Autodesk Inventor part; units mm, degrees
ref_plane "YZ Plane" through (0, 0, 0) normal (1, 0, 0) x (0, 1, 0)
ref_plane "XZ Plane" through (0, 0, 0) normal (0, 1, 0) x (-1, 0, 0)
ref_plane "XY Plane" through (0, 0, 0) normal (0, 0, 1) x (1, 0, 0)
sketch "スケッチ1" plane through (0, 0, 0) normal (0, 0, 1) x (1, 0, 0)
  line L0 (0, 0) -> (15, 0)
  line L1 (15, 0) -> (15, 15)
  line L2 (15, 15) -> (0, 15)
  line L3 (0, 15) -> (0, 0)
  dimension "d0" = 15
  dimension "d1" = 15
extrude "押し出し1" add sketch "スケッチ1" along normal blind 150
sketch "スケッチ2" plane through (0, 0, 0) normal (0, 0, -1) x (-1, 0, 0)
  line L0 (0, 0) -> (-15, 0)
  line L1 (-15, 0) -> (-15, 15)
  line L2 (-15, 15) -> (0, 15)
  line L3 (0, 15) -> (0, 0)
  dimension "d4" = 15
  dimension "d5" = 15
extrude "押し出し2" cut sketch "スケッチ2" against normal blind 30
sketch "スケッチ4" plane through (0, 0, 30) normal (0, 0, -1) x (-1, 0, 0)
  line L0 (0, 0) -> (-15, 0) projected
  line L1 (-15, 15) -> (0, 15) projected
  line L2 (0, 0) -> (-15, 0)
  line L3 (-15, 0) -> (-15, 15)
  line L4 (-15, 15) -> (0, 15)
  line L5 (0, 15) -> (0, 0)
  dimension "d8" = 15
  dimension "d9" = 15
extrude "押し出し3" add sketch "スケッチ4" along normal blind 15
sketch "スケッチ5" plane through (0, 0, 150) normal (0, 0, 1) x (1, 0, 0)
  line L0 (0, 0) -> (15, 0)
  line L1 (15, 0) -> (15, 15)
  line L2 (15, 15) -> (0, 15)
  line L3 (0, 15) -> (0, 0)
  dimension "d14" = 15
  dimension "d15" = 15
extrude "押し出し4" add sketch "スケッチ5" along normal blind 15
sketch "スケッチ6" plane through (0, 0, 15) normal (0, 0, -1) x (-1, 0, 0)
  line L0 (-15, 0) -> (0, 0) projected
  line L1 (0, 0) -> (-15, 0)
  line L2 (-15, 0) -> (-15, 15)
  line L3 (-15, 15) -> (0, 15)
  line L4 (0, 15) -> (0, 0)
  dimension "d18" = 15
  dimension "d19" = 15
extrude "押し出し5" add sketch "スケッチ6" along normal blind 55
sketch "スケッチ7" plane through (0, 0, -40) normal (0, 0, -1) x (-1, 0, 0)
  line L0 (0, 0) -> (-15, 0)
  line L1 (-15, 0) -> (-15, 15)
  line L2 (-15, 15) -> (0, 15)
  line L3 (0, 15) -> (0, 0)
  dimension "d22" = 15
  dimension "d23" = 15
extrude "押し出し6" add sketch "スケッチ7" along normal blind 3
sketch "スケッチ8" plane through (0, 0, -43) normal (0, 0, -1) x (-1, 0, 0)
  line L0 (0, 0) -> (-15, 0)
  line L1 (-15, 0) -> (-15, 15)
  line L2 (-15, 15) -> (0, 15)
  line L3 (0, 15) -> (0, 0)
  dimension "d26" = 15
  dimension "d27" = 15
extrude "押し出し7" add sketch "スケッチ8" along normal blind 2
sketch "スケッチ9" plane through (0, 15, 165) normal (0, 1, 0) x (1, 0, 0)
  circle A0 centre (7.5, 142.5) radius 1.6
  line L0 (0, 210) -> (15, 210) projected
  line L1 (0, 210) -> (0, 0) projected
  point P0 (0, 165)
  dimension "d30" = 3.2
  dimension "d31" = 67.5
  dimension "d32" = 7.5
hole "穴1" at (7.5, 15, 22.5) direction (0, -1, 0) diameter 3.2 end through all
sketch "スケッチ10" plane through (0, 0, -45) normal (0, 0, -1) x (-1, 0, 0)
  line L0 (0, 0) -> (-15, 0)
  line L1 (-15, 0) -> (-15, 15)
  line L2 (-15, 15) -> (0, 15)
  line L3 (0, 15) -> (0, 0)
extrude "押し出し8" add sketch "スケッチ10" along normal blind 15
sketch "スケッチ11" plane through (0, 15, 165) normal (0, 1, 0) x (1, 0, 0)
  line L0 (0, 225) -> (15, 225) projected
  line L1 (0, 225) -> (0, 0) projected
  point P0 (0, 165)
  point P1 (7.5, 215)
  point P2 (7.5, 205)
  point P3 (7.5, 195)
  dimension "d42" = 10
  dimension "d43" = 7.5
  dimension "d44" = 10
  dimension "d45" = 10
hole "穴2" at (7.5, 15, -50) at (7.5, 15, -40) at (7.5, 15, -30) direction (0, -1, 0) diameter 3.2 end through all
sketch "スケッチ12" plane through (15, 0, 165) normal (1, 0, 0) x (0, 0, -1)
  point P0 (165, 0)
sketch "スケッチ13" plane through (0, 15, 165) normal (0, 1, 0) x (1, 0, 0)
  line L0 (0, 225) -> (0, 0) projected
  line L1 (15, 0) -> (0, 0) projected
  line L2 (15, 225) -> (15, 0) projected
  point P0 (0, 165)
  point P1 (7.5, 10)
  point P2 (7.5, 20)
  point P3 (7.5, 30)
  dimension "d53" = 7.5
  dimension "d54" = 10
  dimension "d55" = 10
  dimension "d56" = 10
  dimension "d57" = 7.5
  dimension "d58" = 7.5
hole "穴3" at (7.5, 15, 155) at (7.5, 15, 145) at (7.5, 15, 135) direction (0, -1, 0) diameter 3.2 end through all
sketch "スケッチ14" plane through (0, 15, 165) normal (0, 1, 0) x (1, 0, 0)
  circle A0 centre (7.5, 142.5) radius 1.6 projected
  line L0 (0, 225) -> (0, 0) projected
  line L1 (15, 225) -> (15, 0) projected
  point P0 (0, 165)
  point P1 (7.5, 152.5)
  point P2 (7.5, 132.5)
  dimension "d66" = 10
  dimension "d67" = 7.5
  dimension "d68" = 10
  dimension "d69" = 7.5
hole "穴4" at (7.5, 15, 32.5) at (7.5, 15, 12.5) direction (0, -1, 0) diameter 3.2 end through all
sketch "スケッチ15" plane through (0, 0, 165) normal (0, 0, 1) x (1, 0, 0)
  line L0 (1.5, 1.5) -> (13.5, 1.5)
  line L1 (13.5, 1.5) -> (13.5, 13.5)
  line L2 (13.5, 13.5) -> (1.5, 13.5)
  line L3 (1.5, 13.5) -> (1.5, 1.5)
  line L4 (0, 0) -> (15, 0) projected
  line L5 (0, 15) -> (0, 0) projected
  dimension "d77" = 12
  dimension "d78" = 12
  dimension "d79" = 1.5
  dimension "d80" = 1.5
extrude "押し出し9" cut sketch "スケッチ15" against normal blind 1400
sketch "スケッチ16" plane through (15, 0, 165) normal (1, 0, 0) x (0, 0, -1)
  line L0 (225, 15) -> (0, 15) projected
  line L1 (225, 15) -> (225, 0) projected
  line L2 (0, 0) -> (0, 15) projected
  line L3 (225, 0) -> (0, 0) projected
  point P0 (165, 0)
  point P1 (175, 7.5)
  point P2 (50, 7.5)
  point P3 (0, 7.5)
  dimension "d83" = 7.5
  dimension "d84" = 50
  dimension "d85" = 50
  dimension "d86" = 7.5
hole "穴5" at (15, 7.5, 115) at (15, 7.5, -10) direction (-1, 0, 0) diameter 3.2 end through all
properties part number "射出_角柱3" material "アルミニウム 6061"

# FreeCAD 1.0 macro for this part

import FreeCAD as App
import Part
import Sketcher
Q = App.Units.Quantity

doc = App.newDocument("Part")
body = doc.addObject("PartDesign::Body", "Body")

# Sketch on XY plane
sketch1 = body.newObject("Sketcher::SketchObject", "Sketch")
sketch1.AttachmentSupport = (doc.getObject("XY_Plane"), [""])
sketch1.MapMode = "FlatFace"
sketch1.addGeometry(Part.LineSegment(App.Vector(0, 15, 0), App.Vector(0, 0, 0)), False)
sketch1.addGeometry(Part.LineSegment(App.Vector(0, 0, 0), App.Vector(15, 0, 0)), False)
sketch1.addGeometry(Part.LineSegment(App.Vector(15, 0, 0), App.Vector(15, 15, 0)), False)
sketch1.addGeometry(Part.LineSegment(App.Vector(15, 15, 0), App.Vector(0, 15, 0)), False)
sketch1.addConstraint(Sketcher.Constraint("Coincident", 0, 2, 1, 1))
sketch1.addConstraint(Sketcher.Constraint("Coincident", 1, 2, 2, 1))
sketch1.addConstraint(Sketcher.Constraint("Coincident", 2, 2, 3, 1))
sketch1.addConstraint(Sketcher.Constraint("Coincident", 3, 2, 0, 1))
sketch1.addConstraint(Sketcher.Constraint("Vertical", 0))
sketch1.addConstraint(Sketcher.Constraint("Horizontal", 1))
sketch1.addConstraint(Sketcher.Constraint("Vertical", 2))
sketch1.addConstraint(Sketcher.Constraint("Horizontal", 3))
sketch1.addConstraint(Sketcher.Constraint("Coincident", 0, 2, -1, 1))
sketch1.addConstraint(Sketcher.Constraint("Equal", 3, 0))
sketch1.addConstraint(Sketcher.Constraint("DistanceX", 1, 1, 1, 2, Q("15 mm")))
pad1 = body.newObject("PartDesign::Pad", "Pad")
pad1.Profile = sketch1
pad1.Length = 150

# Sketch on XY plane
sketch2 = body.newObject("Sketcher::SketchObject", "Sketch001")
sketch2.AttachmentSupport = (doc.getObject("XY_Plane"), [""])
sketch2.MapMode = "FlatFace"
sketch2.addGeometry(Part.LineSegment(App.Vector(15, 0, 0), App.Vector(0, 0, 0)), False)
sketch2.addGeometry(Part.LineSegment(App.Vector(0, 0, 0), App.Vector(0, 15, 0)), False)
sketch2.addGeometry(Part.LineSegment(App.Vector(0, 15, 0), App.Vector(15, 15, 0)), False)
sketch2.addGeometry(Part.LineSegment(App.Vector(15, 15, 0), App.Vector(15, 0, 0)), False)
sketch2.addConstraint(Sketcher.Constraint("Coincident", 0, 2, 1, 1))
sketch2.addConstraint(Sketcher.Constraint("Coincident", 1, 2, 2, 1))
sketch2.addConstraint(Sketcher.Constraint("Coincident", 2, 2, 3, 1))
sketch2.addConstraint(Sketcher.Constraint("Coincident", 3, 2, 0, 1))
sketch2.addConstraint(Sketcher.Constraint("Horizontal", 0))
sketch2.addConstraint(Sketcher.Constraint("Vertical", 1))
sketch2.addConstraint(Sketcher.Constraint("Horizontal", 2))
sketch2.addConstraint(Sketcher.Constraint("Vertical", 3))
sketch2.addConstraint(Sketcher.Constraint("Coincident", 0, 2, -1, 1))
sketch2.addConstraint(Sketcher.Constraint("Equal", 2, 1))
sketch2.addConstraint(Sketcher.Constraint("DistanceX", 0, 2, 0, 1, Q("15 mm")))
pocket1 = body.newObject("PartDesign::Pocket", "Pocket")
pocket1.Profile = sketch2
pocket1.Length = 30
pocket1.Reversed = True

# Sketch on XY plane
sketch3 = body.newObject("Sketcher::SketchObject", "Sketch002")
sketch3.AttachmentSupport = (doc.getObject("XY_Plane"), [""])
sketch3.MapMode = "FlatFace"
sketch3.AttachmentOffset = App.Placement(App.Vector(0, 0, 30), App.Rotation())
sketch3.addGeometry(Part.LineSegment(App.Vector(15, 0, 0), App.Vector(0, 0, 0)), False)
sketch3.addGeometry(Part.LineSegment(App.Vector(0, 0, 0), App.Vector(0, 15, 0)), False)
sketch3.addGeometry(Part.LineSegment(App.Vector(0, 15, 0), App.Vector(15, 15, 0)), False)
sketch3.addGeometry(Part.LineSegment(App.Vector(15, 15, 0), App.Vector(15, 0, 0)), False)
sketch3.addConstraint(Sketcher.Constraint("Coincident", 0, 2, 1, 1))
sketch3.addConstraint(Sketcher.Constraint("Coincident", 1, 2, 2, 1))
sketch3.addConstraint(Sketcher.Constraint("Coincident", 2, 2, 3, 1))
sketch3.addConstraint(Sketcher.Constraint("Coincident", 3, 2, 0, 1))
sketch3.addConstraint(Sketcher.Constraint("Horizontal", 0))
sketch3.addConstraint(Sketcher.Constraint("Vertical", 1))
sketch3.addConstraint(Sketcher.Constraint("Horizontal", 2))
sketch3.addConstraint(Sketcher.Constraint("Vertical", 3))
sketch3.addConstraint(Sketcher.Constraint("Coincident", 0, 2, -1, 1))
sketch3.addConstraint(Sketcher.Constraint("Equal", 2, 1))
sketch3.addConstraint(Sketcher.Constraint("DistanceX", 0, 2, 0, 1, Q("15 mm")))
pad2 = body.newObject("PartDesign::Pad", "Pad001")
pad2.Profile = sketch3
pad2.Length = 15
pad2.Reversed = True

# Sketch on XY plane
sketch4 = body.newObject("Sketcher::SketchObject", "Sketch003")
sketch4.AttachmentSupport = (doc.getObject("XY_Plane"), [""])
sketch4.MapMode = "FlatFace"
sketch4.AttachmentOffset = App.Placement(App.Vector(0, 0, 150), App.Rotation())
sketch4.addGeometry(Part.LineSegment(App.Vector(0, 15, 0), App.Vector(0, 0, 0)), False)
sketch4.addGeometry(Part.LineSegment(App.Vector(0, 0, 0), App.Vector(15, 0, 0)), False)
sketch4.addGeometry(Part.LineSegment(App.Vector(15, 0, 0), App.Vector(15, 15, 0)), False)
sketch4.addGeometry(Part.LineSegment(App.Vector(15, 15, 0), App.Vector(0, 15, 0)), False)
sketch4.addConstraint(Sketcher.Constraint("Coincident", 0, 2, 1, 1))
sketch4.addConstraint(Sketcher.Constraint("Coincident", 1, 2, 2, 1))
sketch4.addConstraint(Sketcher.Constraint("Coincident", 2, 2, 3, 1))
sketch4.addConstraint(Sketcher.Constraint("Coincident", 3, 2, 0, 1))
sketch4.addConstraint(Sketcher.Constraint("Vertical", 0))
sketch4.addConstraint(Sketcher.Constraint("Horizontal", 1))
sketch4.addConstraint(Sketcher.Constraint("Vertical", 2))
sketch4.addConstraint(Sketcher.Constraint("Horizontal", 3))
sketch4.addConstraint(Sketcher.Constraint("Coincident", 0, 2, -1, 1))
sketch4.addConstraint(Sketcher.Constraint("Equal", 3, 0))
sketch4.addConstraint(Sketcher.Constraint("DistanceX", 1, 1, 1, 2, Q("15 mm")))
pad3 = body.newObject("PartDesign::Pad", "Pad002")
pad3.Profile = sketch4
pad3.Length = 15

# Sketch on XY plane
sketch5 = body.newObject("Sketcher::SketchObject", "Sketch004")
sketch5.AttachmentSupport = (doc.getObject("XY_Plane"), [""])
sketch5.MapMode = "FlatFace"
sketch5.AttachmentOffset = App.Placement(App.Vector(0, 0, 15), App.Rotation())
sketch5.addGeometry(Part.LineSegment(App.Vector(15, 15, 0), App.Vector(15, 0, 0)), False)
sketch5.addGeometry(Part.LineSegment(App.Vector(15, 0, 0), App.Vector(0, 0, 0)), False)
sketch5.addGeometry(Part.LineSegment(App.Vector(0, 0, 0), App.Vector(0, 15, 0)), False)
sketch5.addGeometry(Part.LineSegment(App.Vector(0, 15, 0), App.Vector(15, 15, 0)), False)
sketch5.addConstraint(Sketcher.Constraint("Coincident", 0, 2, 1, 1))
sketch5.addConstraint(Sketcher.Constraint("Coincident", 1, 2, 2, 1))
sketch5.addConstraint(Sketcher.Constraint("Coincident", 2, 2, 3, 1))
sketch5.addConstraint(Sketcher.Constraint("Coincident", 3, 2, 0, 1))
sketch5.addConstraint(Sketcher.Constraint("Vertical", 0))
sketch5.addConstraint(Sketcher.Constraint("Horizontal", 1))
sketch5.addConstraint(Sketcher.Constraint("Vertical", 2))
sketch5.addConstraint(Sketcher.Constraint("Horizontal", 3))
sketch5.addConstraint(Sketcher.Constraint("Coincident", 1, 2, -1, 1))
sketch5.addConstraint(Sketcher.Constraint("Equal", 3, 0))
sketch5.addConstraint(Sketcher.Constraint("DistanceX", 1, 2, 1, 1, Q("15 mm")))
pad4 = body.newObject("PartDesign::Pad", "Pad003")
pad4.Profile = sketch5
pad4.Length = 55
pad4.Reversed = True

# Sketch on XY plane
sketch6 = body.newObject("Sketcher::SketchObject", "Sketch005")
sketch6.AttachmentSupport = (doc.getObject("XY_Plane"), [""])
sketch6.MapMode = "FlatFace"
sketch6.AttachmentOffset = App.Placement(App.Vector(0, 0, -40), App.Rotation())
sketch6.addGeometry(Part.LineSegment(App.Vector(15, 0, 0), App.Vector(0, 0, 0)), False)
sketch6.addGeometry(Part.LineSegment(App.Vector(0, 0, 0), App.Vector(0, 15, 0)), False)
sketch6.addGeometry(Part.LineSegment(App.Vector(0, 15, 0), App.Vector(15, 15, 0)), False)
sketch6.addGeometry(Part.LineSegment(App.Vector(15, 15, 0), App.Vector(15, 0, 0)), False)
sketch6.addConstraint(Sketcher.Constraint("Coincident", 0, 2, 1, 1))
sketch6.addConstraint(Sketcher.Constraint("Coincident", 1, 2, 2, 1))
sketch6.addConstraint(Sketcher.Constraint("Coincident", 2, 2, 3, 1))
sketch6.addConstraint(Sketcher.Constraint("Coincident", 3, 2, 0, 1))
sketch6.addConstraint(Sketcher.Constraint("Horizontal", 0))
sketch6.addConstraint(Sketcher.Constraint("Vertical", 1))
sketch6.addConstraint(Sketcher.Constraint("Horizontal", 2))
sketch6.addConstraint(Sketcher.Constraint("Vertical", 3))
sketch6.addConstraint(Sketcher.Constraint("Coincident", 0, 2, -1, 1))
sketch6.addConstraint(Sketcher.Constraint("Equal", 2, 1))
sketch6.addConstraint(Sketcher.Constraint("DistanceX", 0, 2, 0, 1, Q("15 mm")))
pad5 = body.newObject("PartDesign::Pad", "Pad004")
pad5.Profile = sketch6
pad5.Length = 3
pad5.Reversed = True

# Sketch on XY plane
sketch7 = body.newObject("Sketcher::SketchObject", "Sketch006")
sketch7.AttachmentSupport = (doc.getObject("XY_Plane"), [""])
sketch7.MapMode = "FlatFace"
sketch7.AttachmentOffset = App.Placement(App.Vector(0, 0, -43), App.Rotation())
sketch7.addGeometry(Part.LineSegment(App.Vector(15, 0, 0), App.Vector(0, 0, 0)), False)
sketch7.addGeometry(Part.LineSegment(App.Vector(0, 0, 0), App.Vector(0, 15, 0)), False)
sketch7.addGeometry(Part.LineSegment(App.Vector(0, 15, 0), App.Vector(15, 15, 0)), False)
sketch7.addGeometry(Part.LineSegment(App.Vector(15, 15, 0), App.Vector(15, 0, 0)), False)
sketch7.addConstraint(Sketcher.Constraint("Coincident", 0, 2, 1, 1))
sketch7.addConstraint(Sketcher.Constraint("Coincident", 1, 2, 2, 1))
sketch7.addConstraint(Sketcher.Constraint("Coincident", 2, 2, 3, 1))
sketch7.addConstraint(Sketcher.Constraint("Coincident", 3, 2, 0, 1))
sketch7.addConstraint(Sketcher.Constraint("Horizontal", 0))
sketch7.addConstraint(Sketcher.Constraint("Vertical", 1))
sketch7.addConstraint(Sketcher.Constraint("Horizontal", 2))
sketch7.addConstraint(Sketcher.Constraint("Vertical", 3))
sketch7.addConstraint(Sketcher.Constraint("Coincident", 0, 2, -1, 1))
sketch7.addConstraint(Sketcher.Constraint("Equal", 2, 1))
sketch7.addConstraint(Sketcher.Constraint("DistanceX", 0, 2, 0, 1, Q("15 mm")))
pad6 = body.newObject("PartDesign::Pad", "Pad005")
pad6.Profile = sketch7
pad6.Length = 2
pad6.Reversed = True

# Sketch on XZ plane
sketch8 = body.newObject("Sketcher::SketchObject", "Sketch007")
sketch8.AttachmentSupport = (doc.getObject("XZ_Plane"), [""])
sketch8.MapMode = "FlatFace"
sketch8.AttachmentOffset = App.Placement(App.Vector(0, 0, -15), App.Rotation())
sketch8.addGeometry(Part.Circle(App.Vector(7.5, 22.5, 0), App.Vector(0, 0, 1), 1.6), False)
sketch8.addConstraint(Sketcher.Constraint("Diameter", 0, Q("3.2 mm")))
sketch8.addConstraint(Sketcher.Constraint("DistanceX", -1, 1, 0, 3, Q("7.5 mm")))
sketch8.addConstraint(Sketcher.Constraint("DistanceY", -1, 1, 0, 3, Q("22.5 mm")))
doc.recompute()
hole = body.newObject("PartDesign::Hole", "Hole")
hole.Profile = sketch8
hole.ThreadType = "None"
hole.Diameter = 3.2
hole.DepthType = "ThroughAll"
hole.Reversed = True

# Sketch on XY plane
sketch9 = body.newObject("Sketcher::SketchObject", "Sketch008")
sketch9.AttachmentSupport = (doc.getObject("XY_Plane"), [""])
sketch9.MapMode = "FlatFace"
sketch9.AttachmentOffset = App.Placement(App.Vector(0, 0, -45), App.Rotation())
sketch9.addGeometry(Part.LineSegment(App.Vector(15, 0, 0), App.Vector(0, 0, 0)), False)
sketch9.addGeometry(Part.LineSegment(App.Vector(0, 0, 0), App.Vector(0, 15, 0)), False)
sketch9.addGeometry(Part.LineSegment(App.Vector(0, 15, 0), App.Vector(15, 15, 0)), False)
sketch9.addGeometry(Part.LineSegment(App.Vector(15, 15, 0), App.Vector(15, 0, 0)), False)
sketch9.addConstraint(Sketcher.Constraint("Coincident", 0, 2, 1, 1))
sketch9.addConstraint(Sketcher.Constraint("Coincident", 1, 2, 2, 1))
sketch9.addConstraint(Sketcher.Constraint("Coincident", 2, 2, 3, 1))
sketch9.addConstraint(Sketcher.Constraint("Coincident", 3, 2, 0, 1))
sketch9.addConstraint(Sketcher.Constraint("Horizontal", 0))
sketch9.addConstraint(Sketcher.Constraint("Vertical", 1))
sketch9.addConstraint(Sketcher.Constraint("Horizontal", 2))
sketch9.addConstraint(Sketcher.Constraint("Vertical", 3))
sketch9.addConstraint(Sketcher.Constraint("Coincident", 0, 2, -1, 1))
sketch9.addConstraint(Sketcher.Constraint("Equal", 2, 1))
sketch9.addConstraint(Sketcher.Constraint("DistanceX", 0, 2, 0, 1, Q("15 mm")))
pad7 = body.newObject("PartDesign::Pad", "Pad006")
pad7.Profile = sketch9
pad7.Length = 15
pad7.Reversed = True

# Sketch on XZ plane
sketch10 = body.newObject("Sketcher::SketchObject", "Sketch009")
sketch10.AttachmentSupport = (doc.getObject("XZ_Plane"), [""])
sketch10.MapMode = "FlatFace"
sketch10.AttachmentOffset = App.Placement(App.Vector(0, 0, -15), App.Rotation())
sketch10.addGeometry(Part.Circle(App.Vector(7.5, -50, 0), App.Vector(0, 0, 1), 1.6), False)
sketch10.addGeometry(Part.Circle(App.Vector(7.5, -40, 0), App.Vector(0, 0, 1), 1.6), False)
sketch10.addGeometry(Part.Circle(App.Vector(7.5, -30, 0), App.Vector(0, 0, 1), 1.6), False)
sketch10.addConstraint(Sketcher.Constraint("Equal", 0, 1))
sketch10.addConstraint(Sketcher.Constraint("Equal", 1, 2))
sketch10.addConstraint(Sketcher.Constraint("Vertical", 0, 3, 1, 3))
sketch10.addConstraint(Sketcher.Constraint("Vertical", 1, 3, 2, 3))
sketch10.addConstraint(Sketcher.Constraint("Diameter", 0, Q("3.2 mm")))
sketch10.addConstraint(Sketcher.Constraint("DistanceY", 0, 3, -1, 1, Q("50 mm")))
sketch10.addConstraint(Sketcher.Constraint("DistanceY", 1, 3, -1, 1, Q("40 mm")))
sketch10.addConstraint(Sketcher.Constraint("DistanceY", 2, 3, -1, 1, Q("30 mm")))
sketch10.addConstraint(Sketcher.Constraint("DistanceX", -1, 1, 0, 3, Q("7.5 mm")))
doc.recompute()
hole2 = body.newObject("PartDesign::Hole", "Hole001")
hole2.Profile = sketch10
hole2.ThreadType = "None"
hole2.Diameter = 3.2
hole2.DepthType = "ThroughAll"
hole2.Reversed = True

# Sketch on XZ plane
sketch11 = body.newObject("Sketcher::SketchObject", "Sketch010")
sketch11.AttachmentSupport = (doc.getObject("XZ_Plane"), [""])
sketch11.MapMode = "FlatFace"
sketch11.AttachmentOffset = App.Placement(App.Vector(0, 0, -15), App.Rotation())
sketch11.addGeometry(Part.Circle(App.Vector(7.5, 155, 0), App.Vector(0, 0, 1), 1.6), False)
sketch11.addGeometry(Part.Circle(App.Vector(7.5, 145, 0), App.Vector(0, 0, 1), 1.6), False)
sketch11.addGeometry(Part.Circle(App.Vector(7.5, 135, 0), App.Vector(0, 0, 1), 1.6), False)
sketch11.addConstraint(Sketcher.Constraint("Equal", 0, 1))
sketch11.addConstraint(Sketcher.Constraint("Equal", 1, 2))
sketch11.addConstraint(Sketcher.Constraint("Vertical", 0, 3, 1, 3))
sketch11.addConstraint(Sketcher.Constraint("Vertical", 1, 3, 2, 3))
sketch11.addConstraint(Sketcher.Constraint("Diameter", 0, Q("3.2 mm")))
sketch11.addConstraint(Sketcher.Constraint("DistanceY", -1, 1, 0, 3, Q("155 mm")))
sketch11.addConstraint(Sketcher.Constraint("DistanceY", -1, 1, 1, 3, Q("145 mm")))
sketch11.addConstraint(Sketcher.Constraint("DistanceY", -1, 1, 2, 3, Q("135 mm")))
sketch11.addConstraint(Sketcher.Constraint("DistanceX", -1, 1, 0, 3, Q("7.5 mm")))
doc.recompute()
hole3 = body.newObject("PartDesign::Hole", "Hole002")
hole3.Profile = sketch11
hole3.ThreadType = "None"
hole3.Diameter = 3.2
hole3.DepthType = "ThroughAll"
hole3.Reversed = True

# Sketch on XZ plane
sketch12 = body.newObject("Sketcher::SketchObject", "Sketch011")
sketch12.AttachmentSupport = (doc.getObject("XZ_Plane"), [""])
sketch12.MapMode = "FlatFace"
sketch12.AttachmentOffset = App.Placement(App.Vector(0, 0, -15), App.Rotation())
sketch12.addGeometry(Part.Circle(App.Vector(7.5, 32.5, 0), App.Vector(0, 0, 1), 1.6), False)
sketch12.addGeometry(Part.Circle(App.Vector(7.5, 12.5, 0), App.Vector(0, 0, 1), 1.6), False)
sketch12.addConstraint(Sketcher.Constraint("Equal", 0, 1))
sketch12.addConstraint(Sketcher.Constraint("Vertical", 0, 3, 1, 3))
sketch12.addConstraint(Sketcher.Constraint("Diameter", 0, Q("3.2 mm")))
sketch12.addConstraint(Sketcher.Constraint("DistanceY", 1, 3, 0, 3, Q("20 mm")))
sketch12.addConstraint(Sketcher.Constraint("DistanceX", -1, 1, 0, 3, Q("7.5 mm")))
sketch12.addConstraint(Sketcher.Constraint("DistanceY", -1, 1, 0, 3, Q("32.5 mm")))
doc.recompute()
hole4 = body.newObject("PartDesign::Hole", "Hole003")
hole4.Profile = sketch12
hole4.ThreadType = "None"
hole4.Diameter = 3.2
hole4.DepthType = "ThroughAll"
hole4.Reversed = True

# Sketch on XY plane
sketch13 = body.newObject("Sketcher::SketchObject", "Sketch012")
sketch13.AttachmentSupport = (doc.getObject("XY_Plane"), [""])
sketch13.MapMode = "FlatFace"
sketch13.AttachmentOffset = App.Placement(App.Vector(0, 0, 165), App.Rotation())
sketch13.addGeometry(Part.LineSegment(App.Vector(2, 14, 0), App.Vector(2, 2, 0)), False)
sketch13.addGeometry(Part.LineSegment(App.Vector(2, 2, 0), App.Vector(14, 2, 0)), False)
sketch13.addGeometry(Part.LineSegment(App.Vector(14, 2, 0), App.Vector(14, 14, 0)), False)
sketch13.addGeometry(Part.LineSegment(App.Vector(14, 14, 0), App.Vector(2, 14, 0)), False)
sketch13.addConstraint(Sketcher.Constraint("Coincident", 0, 2, 1, 1))
sketch13.addConstraint(Sketcher.Constraint("Coincident", 1, 2, 2, 1))
sketch13.addConstraint(Sketcher.Constraint("Coincident", 2, 2, 3, 1))
sketch13.addConstraint(Sketcher.Constraint("Coincident", 3, 2, 0, 1))
sketch13.addConstraint(Sketcher.Constraint("Vertical", 0))
sketch13.addConstraint(Sketcher.Constraint("Horizontal", 1))
sketch13.addConstraint(Sketcher.Constraint("Vertical", 2))
sketch13.addConstraint(Sketcher.Constraint("Horizontal", 3))
sketch13.addConstraint(Sketcher.Constraint("Equal", 3, 0))
sketch13.addConstraint(Sketcher.Constraint("DistanceX", 1, 1, 1, 2, Q("12 mm")))
sketch13.addConstraint(Sketcher.Constraint("DistanceX", -1, 1, 0, 2, Q("1.5 mm")))
sketch13.addConstraint(Sketcher.Constraint("DistanceY", -1, 1, 0, 2, Q("1.5 mm")))
pocket2 = body.newObject("PartDesign::Pocket", "Pocket001")
pocket2.Profile = sketch13
pocket2.Length = 1400

# Sketch on YZ plane
sketch14 = body.newObject("Sketcher::SketchObject", "Sketch013")
sketch14.AttachmentSupport = (doc.getObject("YZ_Plane"), [""])
sketch14.MapMode = "FlatFace"
sketch14.AttachmentOffset = App.Placement(App.Vector(0, 0, 15), App.Rotation())
sketch14.addGeometry(Part.Circle(App.Vector(7.5, 115, 0), App.Vector(0, 0, 1), 1.6), False)
sketch14.addGeometry(Part.Circle(App.Vector(7.5, -10, 0), App.Vector(0, 0, 1), 1.6), False)
sketch14.addConstraint(Sketcher.Constraint("Equal", 0, 1))
sketch14.addConstraint(Sketcher.Constraint("Vertical", 0, 3, 1, 3))
sketch14.addConstraint(Sketcher.Constraint("Diameter", 0, Q("3.2 mm")))
sketch14.addConstraint(Sketcher.Constraint("DistanceY", -1, 1, 0, 3, Q("115 mm")))
sketch14.addConstraint(Sketcher.Constraint("DistanceY", 1, 3, -1, 1, Q("10 mm")))
sketch14.addConstraint(Sketcher.Constraint("DistanceX", -1, 1, 0, 3, Q("7.5 mm")))
doc.recompute()
hole5 = body.newObject("PartDesign::Hole", "Hole004")
hole5.Profile = sketch14
hole5.ThreadType = "None"
hole5.Diameter = 3.2
hole5.DepthType = "ThroughAll"

doc.recompute()
